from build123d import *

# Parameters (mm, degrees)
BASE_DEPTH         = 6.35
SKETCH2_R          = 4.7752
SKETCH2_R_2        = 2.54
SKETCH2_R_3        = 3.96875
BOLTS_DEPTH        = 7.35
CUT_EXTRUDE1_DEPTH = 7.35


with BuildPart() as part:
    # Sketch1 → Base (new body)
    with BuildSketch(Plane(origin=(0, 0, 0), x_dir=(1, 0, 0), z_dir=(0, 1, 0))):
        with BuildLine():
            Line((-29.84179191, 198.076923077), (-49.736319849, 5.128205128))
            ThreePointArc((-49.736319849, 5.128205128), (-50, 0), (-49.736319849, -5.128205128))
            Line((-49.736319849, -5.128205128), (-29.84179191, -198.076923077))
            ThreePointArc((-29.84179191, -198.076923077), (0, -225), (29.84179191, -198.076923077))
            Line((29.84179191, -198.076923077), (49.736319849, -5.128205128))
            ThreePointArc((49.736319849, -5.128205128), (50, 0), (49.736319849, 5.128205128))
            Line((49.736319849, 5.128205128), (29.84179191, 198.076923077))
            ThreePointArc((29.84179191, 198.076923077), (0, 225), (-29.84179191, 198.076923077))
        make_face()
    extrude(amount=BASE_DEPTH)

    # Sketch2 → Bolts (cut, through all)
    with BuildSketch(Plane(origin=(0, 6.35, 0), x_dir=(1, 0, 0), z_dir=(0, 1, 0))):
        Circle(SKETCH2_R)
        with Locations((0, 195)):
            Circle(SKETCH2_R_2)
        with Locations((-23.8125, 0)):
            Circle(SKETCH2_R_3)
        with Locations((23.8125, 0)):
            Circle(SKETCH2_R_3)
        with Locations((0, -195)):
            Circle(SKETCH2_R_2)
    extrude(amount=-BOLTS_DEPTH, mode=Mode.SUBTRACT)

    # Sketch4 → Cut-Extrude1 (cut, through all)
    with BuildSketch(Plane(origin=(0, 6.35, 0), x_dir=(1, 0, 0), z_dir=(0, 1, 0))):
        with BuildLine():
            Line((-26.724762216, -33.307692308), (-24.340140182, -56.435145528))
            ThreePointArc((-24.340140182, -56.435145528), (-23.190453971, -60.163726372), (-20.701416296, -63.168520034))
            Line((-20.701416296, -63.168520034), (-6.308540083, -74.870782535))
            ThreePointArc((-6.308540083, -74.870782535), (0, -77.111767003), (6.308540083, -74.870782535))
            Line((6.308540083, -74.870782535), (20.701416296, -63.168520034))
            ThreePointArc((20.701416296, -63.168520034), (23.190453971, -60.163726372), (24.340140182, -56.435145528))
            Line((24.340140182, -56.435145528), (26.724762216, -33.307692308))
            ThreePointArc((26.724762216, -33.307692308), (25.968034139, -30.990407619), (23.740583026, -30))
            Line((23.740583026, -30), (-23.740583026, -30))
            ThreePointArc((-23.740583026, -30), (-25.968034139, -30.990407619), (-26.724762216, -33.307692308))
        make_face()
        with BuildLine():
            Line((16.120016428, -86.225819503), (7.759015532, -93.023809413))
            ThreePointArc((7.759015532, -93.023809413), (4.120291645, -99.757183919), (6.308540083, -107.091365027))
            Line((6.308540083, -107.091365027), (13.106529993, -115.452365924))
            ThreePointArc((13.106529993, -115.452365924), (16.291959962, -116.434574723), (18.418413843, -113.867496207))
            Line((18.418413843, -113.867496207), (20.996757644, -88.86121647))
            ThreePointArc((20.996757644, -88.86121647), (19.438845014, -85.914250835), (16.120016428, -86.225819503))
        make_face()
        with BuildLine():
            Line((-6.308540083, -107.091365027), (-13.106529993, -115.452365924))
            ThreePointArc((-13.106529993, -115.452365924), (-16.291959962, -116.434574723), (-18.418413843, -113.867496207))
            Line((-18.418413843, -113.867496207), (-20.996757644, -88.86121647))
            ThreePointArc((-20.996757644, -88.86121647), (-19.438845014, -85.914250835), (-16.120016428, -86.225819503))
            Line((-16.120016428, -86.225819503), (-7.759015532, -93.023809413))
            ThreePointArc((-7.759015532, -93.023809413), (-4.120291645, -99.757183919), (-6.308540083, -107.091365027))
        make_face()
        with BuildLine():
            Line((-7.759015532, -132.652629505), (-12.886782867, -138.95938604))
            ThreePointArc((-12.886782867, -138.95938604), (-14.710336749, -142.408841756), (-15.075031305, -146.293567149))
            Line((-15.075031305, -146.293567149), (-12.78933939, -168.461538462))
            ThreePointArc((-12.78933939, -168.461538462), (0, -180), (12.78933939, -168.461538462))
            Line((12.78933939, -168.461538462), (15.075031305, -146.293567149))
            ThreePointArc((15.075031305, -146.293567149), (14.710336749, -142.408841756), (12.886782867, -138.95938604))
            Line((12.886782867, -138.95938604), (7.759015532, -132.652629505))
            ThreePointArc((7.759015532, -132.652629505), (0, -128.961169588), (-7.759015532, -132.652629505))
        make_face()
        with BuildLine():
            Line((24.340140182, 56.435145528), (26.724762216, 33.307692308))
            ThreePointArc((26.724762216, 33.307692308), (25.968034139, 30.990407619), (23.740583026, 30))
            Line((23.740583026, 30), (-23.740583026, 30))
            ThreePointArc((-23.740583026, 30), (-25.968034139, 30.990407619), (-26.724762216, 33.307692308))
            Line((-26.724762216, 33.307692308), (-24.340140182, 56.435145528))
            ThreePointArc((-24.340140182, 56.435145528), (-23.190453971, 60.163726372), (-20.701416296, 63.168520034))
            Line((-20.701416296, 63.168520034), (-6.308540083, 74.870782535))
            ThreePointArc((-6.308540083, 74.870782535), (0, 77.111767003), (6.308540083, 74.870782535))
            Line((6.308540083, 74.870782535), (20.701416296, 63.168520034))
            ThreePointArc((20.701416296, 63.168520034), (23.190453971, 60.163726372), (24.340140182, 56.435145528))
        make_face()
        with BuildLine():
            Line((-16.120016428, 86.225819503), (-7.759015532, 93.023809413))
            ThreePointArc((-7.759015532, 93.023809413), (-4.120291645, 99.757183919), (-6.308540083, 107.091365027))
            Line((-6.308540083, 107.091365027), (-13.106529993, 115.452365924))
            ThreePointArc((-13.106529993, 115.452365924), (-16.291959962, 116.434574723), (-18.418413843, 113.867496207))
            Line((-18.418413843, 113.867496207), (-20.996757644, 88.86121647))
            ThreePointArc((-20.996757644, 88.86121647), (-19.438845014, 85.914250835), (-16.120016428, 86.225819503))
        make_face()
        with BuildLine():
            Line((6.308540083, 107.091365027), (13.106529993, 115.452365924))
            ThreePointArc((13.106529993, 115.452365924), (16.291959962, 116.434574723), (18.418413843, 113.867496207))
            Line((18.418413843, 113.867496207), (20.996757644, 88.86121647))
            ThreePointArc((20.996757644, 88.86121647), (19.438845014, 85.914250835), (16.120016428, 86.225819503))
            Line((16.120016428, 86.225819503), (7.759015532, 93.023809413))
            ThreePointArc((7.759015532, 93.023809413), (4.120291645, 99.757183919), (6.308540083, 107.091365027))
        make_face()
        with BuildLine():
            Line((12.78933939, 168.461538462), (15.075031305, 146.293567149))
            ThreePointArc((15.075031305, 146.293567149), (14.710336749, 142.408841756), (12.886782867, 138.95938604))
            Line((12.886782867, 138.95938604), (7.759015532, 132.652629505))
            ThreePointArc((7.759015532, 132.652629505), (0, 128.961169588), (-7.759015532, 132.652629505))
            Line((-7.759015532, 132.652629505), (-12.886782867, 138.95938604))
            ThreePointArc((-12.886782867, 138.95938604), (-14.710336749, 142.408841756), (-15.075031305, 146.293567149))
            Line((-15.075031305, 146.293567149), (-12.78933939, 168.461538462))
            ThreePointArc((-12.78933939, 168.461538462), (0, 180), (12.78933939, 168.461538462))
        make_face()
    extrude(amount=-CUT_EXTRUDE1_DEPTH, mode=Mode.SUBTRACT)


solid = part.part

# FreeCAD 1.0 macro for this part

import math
import FreeCAD as App
import Part
import Sketcher
Q = App.Units.Quantity

doc = App.newDocument("Part")
body = doc.addObject("PartDesign::Body", "Body")

# Sketch on XZ plane
sketch1 = body.newObject("Sketcher::SketchObject", "Sketch")
sketch1.AttachmentSupport = (doc.getObject("XZ_Plane"), [""])
sketch1.MapMode = "FlatFace"
sketch1.addGeometry([
    Part.LineSegment(App.Vector(-30, -198, 0), App.Vector(-50, -5, 0)),  # 0
    Part.ArcOfCircle(Part.Circle(App.Vector(0, 0, 0), App.Vector(0, 0, 1), 50), math.radians(174.11), math.radians(185.89)),  # 1
    Part.LineSegment(App.Vector(-50, 5, 0), App.Vector(-30, 198, 0)),  # 2
    Part.ArcOfCircle(Part.Circle(App.Vector(0, 195, 0), App.Vector(0, 0, 1), 30), math.radians(6), math.radians(174)),  # 3
    Part.LineSegment(App.Vector(30, 198, 0), App.Vector(50, 5, 0)),  # 4
    Part.ArcOfCircle(Part.Circle(App.Vector(0, 0, 0), App.Vector(0, 0, 1), 50), math.radians(-5.89), math.radians(5.89)),  # 5
    Part.LineSegment(App.Vector(50, -5, 0), App.Vector(30, -198, 0)),  # 6
    Part.ArcOfCircle(Part.Circle(App.Vector(0, -195, 0), App.Vector(0, 0, 1), 30), math.radians(-174), math.radians(-6)),  # 7
], False)
sketch1.addConstraint([
    Sketcher.Constraint("Tangent", 0, 2, 1, 2),
    Sketcher.Constraint("Tangent", 1, 1, 2, 1),
    Sketcher.Constraint("Tangent", 2, 2, 3, 2),
    Sketcher.Constraint("Tangent", 3, 1, 4, 1),
    Sketcher.Constraint("Tangent", 4, 2, 5, 2),
    Sketcher.Constraint("Tangent", 5, 1, 6, 1),
    Sketcher.Constraint("Tangent", 6, 2, 7, 2),
    Sketcher.Constraint("Tangent", 7, 1, 0, 1),
    Sketcher.Constraint("Coincident", 1, 3, -1, 1),
    Sketcher.Constraint("Coincident", 5, 3, -1, 1),
    Sketcher.Constraint("Equal", 1, 5),
    Sketcher.Constraint("Equal", 3, 7),
    Sketcher.Constraint("Symmetric", 3, 3, 7, 3, -1, 1),
    Sketcher.Constraint("PointOnObject", 3, 3, -2),
    Sketcher.Constraint("Radius", 1, Q("50 mm")),
    Sketcher.Constraint("Radius", 3, Q("30 mm")),
    Sketcher.Constraint("DistanceY", -1, 1, 3, 3, Q("195 mm")),
])
pad1 = body.newObject("PartDesign::Pad", "Pad")
pad1.Profile = sketch1
pad1.Length = 6.35
pad1.Reversed = True

# Sketch on XZ plane
sketch2 = body.newObject("Sketcher::SketchObject", "Sketch001")
sketch2.AttachmentSupport = (doc.getObject("XZ_Plane"), [""])
sketch2.MapMode = "FlatFace"
sketch2.AttachmentOffset = App.Placement(App.Vector(0, 0, -6.35), App.Rotation())
sketch2.addGeometry([
    Part.Circle(App.Vector(0, 0, 0), App.Vector(0, 0, 1), 4.8),  # 0
    Part.Circle(App.Vector(0, -195, 0), App.Vector(0, 0, 1), 2.5),  # 1
    Part.Circle(App.Vector(-23.8, 0, 0), App.Vector(0, 0, 1), 4),  # 2
    Part.Circle(App.Vector(23.8, 0, 0), App.Vector(0, 0, 1), 4),  # 3
    Part.Circle(App.Vector(0, 195, 0), App.Vector(0, 0, 1), 2.5),  # 4
], False)
sketch2.addConstraint([
    Sketcher.Constraint("Coincident", 0, 3, -1, 1),
    Sketcher.Constraint("Equal", 2, 3),
    Sketcher.Constraint("Equal", 1, 4),
    Sketcher.Constraint("Symmetric", 2, 3, 3, 3, -1, 1),
    Sketcher.Constraint("Symmetric", 1, 3, 4, 3, -1, 1),
    Sketcher.Constraint("PointOnObject", 1, 3, -2),
    Sketcher.Constraint("PointOnObject", 2, 3, -1),
    Sketcher.Constraint("Diameter", 1, Q("5.08 mm")),
    Sketcher.Constraint("DistanceY", 1, 3, -1, 1, Q("195 mm")),
    Sketcher.Constraint("Diameter", 0, Q("9.5504 mm")),
    Sketcher.Constraint("Diameter", 2, Q("7.9375 mm")),
    Sketcher.Constraint("DistanceX", 2, 3, 3, 3, Q("47.625 mm")),
])
pocket1 = body.newObject("PartDesign::Pocket", "Pocket")
pocket1.Profile = sketch2
pocket1.Type = "ThroughAll"
pocket1.Reversed = True

# Sketch on XZ plane
sketch3 = body.newObject("Sketcher::SketchObject", "Sketch002")
sketch3.AttachmentSupport = (doc.getObject("XZ_Plane"), [""])
sketch3.MapMode = "FlatFace"
sketch3.AttachmentOffset = App.Placement(App.Vector(0, 0, -6.35), App.Rotation())
sketch3.addGeometry([
    Part.LineSegment(App.Vector(-26.7, 33.3, 0), App.Vector(-24.3, 56.4, 0)),  # 0
    Part.ArcOfCircle(Part.Circle(App.Vector(-14.4, 55.4, 0), App.Vector(0, 0, 1), 10), math.radians(129), math.radians(174)),  # 1
    Part.LineSegment(App.Vector(-20.7, 63.2, 0), App.Vector(-6.3, 74.9, 0)),  # 2
    Part.ArcOfCircle(Part.Circle(App.Vector(0, 67.1, 0), App.Vector(0, 0, 1), 10), math.radians(51), math.radians(129)),  # 3
    Part.LineSegment(App.Vector(6.3, 74.9, 0), App.Vector(20.7, 63.2, 0)),  # 4
    Part.ArcOfCircle(Part.Circle(App.Vector(14.4, 55.4, 0), App.Vector(0, 0, 1), 10), math.radians(6), math.radians(51)),  # 5
    Part.LineSegment(App.Vector(24.3, 56.4, 0), App.Vector(26.7, 33.3, 0)),  # 6
    Part.ArcOfCircle(Part.Circle(App.Vector(23.7, 33, 0), App.Vector(0, 0, 1), 3), math.radians(-90), math.radians(6)),  # 7
    Part.LineSegment(App.Vector(23.7, 30, 0), App.Vector(-23.7, 30, 0)),  # 8
    Part.ArcOfCircle(Part.Circle(App.Vector(-23.7, 33, 0), App.Vector(0, 0, 1), 3), math.radians(174), math.radians(270)),  # 9
    Part.LineSegment(App.Vector(16.1, 86.2, 0), App.Vector(7.8, 93, 0)),  # 10
    Part.ArcOfCircle(Part.Circle(App.Vector(14.1, 100.8, 0), App.Vector(0, 0, 1), 10), math.radians(141), math.radians(231)),  # 11
    Part.LineSegment(App.Vector(6.3, 107.1, 0), App.Vector(13.1, 115.5, 0)),  # 12
    Part.ArcOfCircle(Part.Circle(App.Vector(15.4, 113.6, 0), App.Vector(0, 0, 1), 3), math.radians(6), math.radians(141)),  # 13
    Part.LineSegment(App.Vector(18.4, 113.9, 0), App.Vector(21, 88.9, 0)),  # 14
    Part.ArcOfCircle(Part.Circle(App.Vector(18, 88.6, 0), App.Vector(0, 0, 1), 3), math.radians(-129), math.radians(6)),  # 15
    Part.LineSegment(App.Vector(-13.1, 115.5, 0), App.Vector(-6.3, 107.1, 0)),  # 16
    Part.ArcOfCircle(Part.Circle(App.Vector(-14.1, 100.8, 0), App.Vector(0, 0, 1), 10), math.radians(-51), math.radians(39)),  # 17
    Part.LineSegment(App.Vector(-7.8, 93, 0), App.Vector(-16.1, 86.2, 0)),  # 18
    Part.ArcOfCircle(Part.Circle(App.Vector(-18, 88.6, 0), App.Vector(0, 0, 1), 3), math.radians(174), math.radians(309)),  # 19
    Part.LineSegment(App.Vector(-21, 88.9, 0), App.Vector(-18.4, 113.9, 0)),  # 20
    Part.ArcOfCircle(Part.Circle(App.Vector(-15.4, 113.6, 0), App.Vector(0, 0, 1), 3), math.radians(39), math.radians(174)),  # 21
    Part.LineSegment(App.Vector(-7.8, 132.7, 0), App.Vector(-12.9, 139, 0)),  # 22
    Part.ArcOfCircle(Part.Circle(App.Vector(-5.1, 145.3, 0), App.Vector(0, 0, 1), 10), math.radians(174), math.radians(219)),  # 23
    Part.LineSegment(App.Vector(-15.1, 146.3, 0), App.Vector(-12.8, 168.5, 0)),  # 24
    Part.ArcOfCircle(Part.Circle(App.Vector(0, 167.1, 0), App.Vector(0, 0, 1), 12.9), math.radians(6), math.radians(174)),  # 25
    Part.LineSegment(App.Vector(12.8, 168.5, 0), App.Vector(15.1, 146.3, 0)),  # 26
    Part.ArcOfCircle(Part.Circle(App.Vector(5.1, 145.3, 0), App.Vector(0, 0, 1), 10), math.radians(-39), math.radians(6)),  # 27
    Part.LineSegment(App.Vector(12.9, 139, 0), App.Vector(7.8, 132.7, 0)),  # 28
    Part.ArcOfCircle(Part.Circle(App.Vector(0, 139, 0), App.Vector(0, 0, 1), 10), math.radians(-141), math.radians(-39)),  # 29
    Part.LineSegment(App.Vector(26.7, -33.3, 0), App.Vector(24.3, -56.4, 0)),  # 30
    Part.ArcOfCircle(Part.Circle(App.Vector(14.4, -55.4, 0), App.Vector(0, 0, 1), 10), math.radians(-51), math.radians(-6)),  # 31
    Part.LineSegment(App.Vector(20.7, -63.2, 0), App.Vector(6.3, -74.9, 0)),  # 32
    Part.ArcOfCircle(Part.Circle(App.Vector(0, -67.1, 0), App.Vector(0, 0, 1), 10), math.radians(-129), math.radians(-51)),  # 33
    Part.LineSegment(App.Vector(-6.3, -74.9, 0), App.Vector(-20.7, -63.2, 0)),  # 34
    Part.ArcOfCircle(Part.Circle(App.Vector(-14.4, -55.4, 0), App.Vector(0, 0, 1), 10), math.radians(-174), math.radians(-129)),  # 35
    Part.LineSegment(App.Vector(-24.3, -56.4, 0), App.Vector(-26.7, -33.3, 0)),  # 36
    Part.ArcOfCircle(Part.Circle(App.Vector(-23.7, -33, 0), App.Vector(0, 0, 1), 3), math.radians(90), math.radians(186)),  # 37
    Part.LineSegment(App.Vector(-23.7, -30, 0), App.Vector(23.7, -30, 0)),  # 38
    Part.ArcOfCircle(Part.Circle(App.Vector(23.7, -33, 0), App.Vector(0, 0, 1), 3), math.radians(-6), math.radians(90)),  # 39
    Part.LineSegment(App.Vector(-16.1, -86.2, 0), App.Vector(-7.8, -93, 0)),  # 40
    Part.ArcOfCircle(Part.Circle(App.Vector(-14.1, -100.8, 0), App.Vector(0, 0, 1), 10), math.radians(-39), math.radians(51)),  # 41
    Part.LineSegment(App.Vector(-6.3, -107.1, 0), App.Vector(-13.1, -115.5, 0)),  # 42
    Part.ArcOfCircle(Part.Circle(App.Vector(-15.4, -113.6, 0), App.Vector(0, 0, 1), 3), math.radians(-174), math.radians(-39)),  # 43
    Part.LineSegment(App.Vector(-18.4, -113.9, 0), App.Vector(-21, -88.9, 0)),  # 44
    Part.ArcOfCircle(Part.Circle(App.Vector(-18, -88.6, 0), App.Vector(0, 0, 1), 3), math.radians(51), math.radians(186)),  # 45
    Part.LineSegment(App.Vector(13.1, -115.5, 0), App.Vector(6.3, -107.1, 0)),  # 46
    Part.ArcOfCircle(Part.Circle(App.Vector(14.1, -100.8, 0), App.Vector(0, 0, 1), 10), math.radians(129), math.radians(219)),  # 47
    Part.LineSegment(App.Vector(7.8, -93, 0), App.Vector(16.1, -86.2, 0)),  # 48
    Part.ArcOfCircle(Part.Circle(App.Vector(18, -88.6, 0), App.Vector(0, 0, 1), 3), math.radians(-6), math.radians(129)),  # 49
    Part.LineSegment(App.Vector(21, -88.9, 0), App.Vector(18.4, -113.9, 0)),  # 50
    Part.ArcOfCircle(Part.Circle(App.Vector(15.4, -113.6, 0), App.Vector(0, 0, 1), 3), math.radians(-141), math.radians(-6)),  # 51
    Part.LineSegment(App.Vector(15.1, -146.3, 0), App.Vector(12.8, -168.5, 0)),  # 52
    Part.ArcOfCircle(Part.Circle(App.Vector(0, -167.1, 0), App.Vector(0, 0, 1), 12.9), math.radians(-174), math.radians(-6)),  # 53
    Part.LineSegment(App.Vector(-12.8, -168.5, 0), App.Vector(-15.1, -146.3, 0)),  # 54
    Part.ArcOfCircle(Part.Circle(App.Vector(-5.1, -145.3, 0), App.Vector(0, 0, 1), 10), math.radians(141), math.radians(186)),  # 55
    Part.LineSegment(App.Vector(-12.9, -139, 0), App.Vector(-7.8, -132.7, 0)),  # 56
    Part.ArcOfCircle(Part.Circle(App.Vector(0, -139, 0), App.Vector(0, 0, 1), 10), math.radians(39), math.radians(141)),  # 57
    Part.LineSegment(App.Vector(7.8, -132.7, 0), App.Vector(12.9, -139, 0)),  # 58
    Part.ArcOfCircle(Part.Circle(App.Vector(5.1, -145.3, 0), App.Vector(0, 0, 1), 10), math.radians(-6), math.radians(39)),  # 59
], False)
sketch3.addConstraint([
    Sketcher.Constraint("Tangent", 0, 2, 1, 2),
    Sketcher.Constraint("Tangent", 1, 1, 2, 1),
    Sketcher.Constraint("Tangent", 2, 2, 3, 2),
    Sketcher.Constraint("Tangent", 3, 1, 4, 1),
    Sketcher.Constraint("Tangent", 4, 2, 5, 2),
    Sketcher.Constraint("Tangent", 5, 1, 6, 1),
    Sketcher.Constraint("Tangent", 6, 2, 7, 2),
    Sketcher.Constraint("Tangent", 7, 1, 8, 1),
    Sketcher.Constraint("Tangent", 8, 2, 9, 2),
    Sketcher.Constraint("Tangent", 9, 1, 0, 1),
    Sketcher.Constraint("Tangent", 10, 2, 11, 2),
    Sketcher.Constraint("Tangent", 11, 1, 12, 1),
    Sketcher.Constraint("Tangent", 12, 2, 13, 2),
    Sketcher.Constraint("Tangent", 13, 1, 14, 1),
    Sketcher.Constraint("Tangent", 14, 2, 15, 2),
    Sketcher.Constraint("Tangent", 15, 1, 10, 1),
    Sketcher.Constraint("Tangent", 16, 2, 17, 2),
    Sketcher.Constraint("Tangent", 17, 1, 18, 1),
    Sketcher.Constraint("Tangent", 18, 2, 19, 2),
    Sketcher.Constraint("Tangent", 19, 1, 20, 1),
    Sketcher.Constraint("Tangent", 20, 2, 21, 2),
    Sketcher.Constraint("Tangent", 21, 1, 16, 1),
    Sketcher.Constraint("Tangent", 22, 2, 23, 2),
    Sketcher.Constraint("Tangent", 23, 1, 24, 1),
    Sketcher.Constraint("Tangent", 24, 2, 25, 2),
    Sketcher.Constraint("Tangent", 25, 1, 26, 1),
    Sketcher.Constraint("Tangent", 26, 2, 27, 2),
    Sketcher.Constraint("Tangent", 27, 1, 28, 1),
    Sketcher.Constraint("Tangent", 28, 2, 29, 2),
    Sketcher.Constraint("Tangent", 29, 1, 22, 1),
    Sketcher.Constraint("Tangent", 30, 2, 31, 2),
    Sketcher.Constraint("Tangent", 31, 1, 32, 1),
    Sketcher.Constraint("Tangent", 32, 2, 33, 2),
    Sketcher.Constraint("Tangent", 33, 1, 34, 1),
    Sketcher.Constraint("Tangent", 34, 2, 35, 2),
    Sketcher.Constraint("Tangent", 35, 1, 36, 1),
    Sketcher.Constraint("Tangent", 36, 2, 37, 2),
    Sketcher.Constraint("Tangent", 37, 1, 38, 1),
    Sketcher.Constraint("Tangent", 38, 2, 39, 2),
    Sketcher.Constraint("Tangent", 39, 1, 30, 1),
    Sketcher.Constraint("Tangent", 40, 2, 41, 2),
    Sketcher.Constraint("Tangent", 41, 1, 42, 1),
    Sketcher.Constraint("Tangent", 42, 2, 43, 2),
    Sketcher.Constraint("Tangent", 43, 1, 44, 1),
    Sketcher.Constraint("Tangent", 44, 2, 45, 2),
    Sketcher.Constraint("Tangent", 45, 1, 40, 1),
    Sketcher.Constraint("Tangent", 46, 2, 47, 2),
    Sketcher.Constraint("Tangent", 47, 1, 48, 1),
    Sketcher.Constraint("Tangent", 48, 2, 49, 2),
    Sketcher.Constraint("Tangent", 49, 1, 50, 1),
    Sketcher.Constraint("Tangent", 50, 2, 51, 2),
    Sketcher.Constraint("Tangent", 51, 1, 46, 1),
    Sketcher.Constraint("Tangent", 52, 2, 53, 2),
    Sketcher.Constraint("Tangent", 53, 1, 54, 1),
    Sketcher.Constraint("Tangent", 54, 2, 55, 2),
    Sketcher.Constraint("Tangent", 55, 1, 56, 1),
    Sketcher.Constraint("Tangent", 56, 2, 57, 2),
    Sketcher.Constraint("Tangent", 57, 1, 58, 1),
    Sketcher.Constraint("Tangent", 58, 2, 59, 2),
    Sketcher.Constraint("Tangent", 59, 1, 52, 1),
    Sketcher.Constraint("Horizontal", 8),
    Sketcher.Constraint("Horizontal", 38),
    Sketcher.Constraint("Equal", 1, 3),
    Sketcher.Constraint("Equal", 3, 5),
    Sketcher.Constraint("Equal", 7, 9),
    Sketcher.Constraint("Equal", 5, 11),
    Sketcher.Constraint("Equal", 9, 13),
    Sketcher.Constraint("Equal", 13, 15),
    Sketcher.Constraint("Equal", 11, 17),
    Sketcher.Constraint("Equal", 15, 19),
    Sketcher.Constraint("Equal", 19, 21),
    Sketcher.Constraint("Equal", 17, 23),
    Sketcher.Constraint("Equal", 23, 27),
    Sketcher.Constraint("Equal", 27, 29),
    Sketcher.Constraint("Equal", 29, 31),
    Sketcher.Constraint("Equal", 31, 33),
    Sketcher.Constraint("Equal", 33, 35),
    Sketcher.Constraint("Equal", 21, 37),
    Sketcher.Constraint("Equal", 37, 39),
    Sketcher.Constraint("Equal", 35, 41),
    Sketcher.Constraint("Equal", 39, 43),
    Sketcher.Constraint("Equal", 43, 45),
    Sketcher.Constraint("Equal", 41, 47),
    Sketcher.Constraint("Equal", 45, 49),
    Sketcher.Constraint("Equal", 49, 51),
    Sketcher.Constraint("Equal", 25, 53),
    Sketcher.Constraint("Equal", 47, 55),
    Sketcher.Constraint("Equal", 55, 57),
    Sketcher.Constraint("Equal", 57, 59),
    Sketcher.Constraint("Symmetric", 1, 3, 31, 3, -1, 1),
    Sketcher.Constraint("Symmetric", 3, 3, 33, 3, -1, 1),
    Sketcher.Constraint("Symmetric", 5, 3, 35, 3, -1, 1),
    Sketcher.Constraint("Symmetric", 7, 3, 37, 3, -1, 1),
    Sketcher.Constraint("Symmetric", 11, 3, 41, 3, -1, 1),
    Sketcher.Constraint("Symmetric", 13, 3, 43, 3, -1, 1),
    Sketcher.Constraint("Symmetric", 15, 3, 45, 3, -1, 1),
    Sketcher.Constraint("Symmetric", 17, 3, 47, 3, -1, 1),
    Sketcher.Constraint("Symmetric", 19, 3, 49, 3, -1, 1),
    Sketcher.Constraint("Symmetric", 21, 3, 51, 3, -1, 1),
    Sketcher.Constraint("Symmetric", 25, 3, 53, 3, -1, 1),
    Sketcher.Constraint("Symmetric", 27, 3, 55, 3, -1, 1),
    Sketcher.Constraint("Symmetric", 29, 3, 57, 3, -1, 1),
    Sketcher.Constraint("Symmetric", 23, 3, 59, 3, -1, 1),
    Sketcher.Constraint("Symmetric", 1, 3, 5, 3, -2),
    Sketcher.Constraint("Symmetric", 11, 3, 17, 3, -2),
    Sketcher.Constraint("Symmetric", 15, 3, 19, 3, -2),
    Sketcher.Constraint("Symmetric", 13, 3, 21, 3, -2),
    Sketcher.Constraint("Symmetric", 23, 3, 27, 3, -2),
    Sketcher.Constraint("PointOnObject", 3, 3, -2),
    Sketcher.Constraint("PointOnObject", 25, 3, -2),
    Sketcher.Constraint("PointOnObject", 29, 3, -2),
    Sketcher.Constraint("Parallel", 4, 10),
    Sketcher.Constraint("Perpendicular", 10, 12),
    Sketcher.Constraint("Parallel", 6, 14),
    Sketcher.Constraint("Parallel", 0, 20),
    Sketcher.Constraint("Perpendicular", 18, 22),
    Sketcher.Constraint("Parallel", 20, 24),
    Sketcher.Constraint("Parallel", 24, 30),
    Sketcher.Constraint("Vertical", 3, 1, 11, 1),
    Sketcher.Constraint("Equal", 10, 12),
    Sketcher.Constraint("Radius", 1, Q("10 mm")),
    Sketcher.Constraint("Radius", 7, Q("3 mm")),
    Sketcher.Constraint("DistanceY", -1, 1, 7, 3, Q("33 mm")),
    Sketcher.Constraint("Radius", 25, Q("12.857143 mm")),
    Sketcher.Constraint("DistanceX", 8, 2, 8, 1, Q("47.481166 mm")),
    Sketcher.Constraint("DistanceX", -1, 1, 15, 3, Q("18.012578 mm")),
    Sketcher.Constraint("DistanceY", -1, 1, 29, 3, Q("138.96117 mm")),
    Sketcher.Constraint("DistanceX", 0, 2, -1, 1, Q("24.34014 mm")),
    Sketcher.Constraint("DistanceY", -1, 1, 1, 1, Q("63.16852 mm")),
    Sketcher.Constraint("DistanceY", -1, 1, 10, 2, Q("93.023809 mm")),
    Sketcher.Constraint("DistanceX", 23, 1, -1, 1, Q("15.075031 mm")),
])
pocket2 = body.newObject("PartDesign::Pocket", "Pocket001")
pocket2.Profile = sketch3
pocket2.Type = "ThroughAll"
pocket2.Reversed = True

doc.recompute()
